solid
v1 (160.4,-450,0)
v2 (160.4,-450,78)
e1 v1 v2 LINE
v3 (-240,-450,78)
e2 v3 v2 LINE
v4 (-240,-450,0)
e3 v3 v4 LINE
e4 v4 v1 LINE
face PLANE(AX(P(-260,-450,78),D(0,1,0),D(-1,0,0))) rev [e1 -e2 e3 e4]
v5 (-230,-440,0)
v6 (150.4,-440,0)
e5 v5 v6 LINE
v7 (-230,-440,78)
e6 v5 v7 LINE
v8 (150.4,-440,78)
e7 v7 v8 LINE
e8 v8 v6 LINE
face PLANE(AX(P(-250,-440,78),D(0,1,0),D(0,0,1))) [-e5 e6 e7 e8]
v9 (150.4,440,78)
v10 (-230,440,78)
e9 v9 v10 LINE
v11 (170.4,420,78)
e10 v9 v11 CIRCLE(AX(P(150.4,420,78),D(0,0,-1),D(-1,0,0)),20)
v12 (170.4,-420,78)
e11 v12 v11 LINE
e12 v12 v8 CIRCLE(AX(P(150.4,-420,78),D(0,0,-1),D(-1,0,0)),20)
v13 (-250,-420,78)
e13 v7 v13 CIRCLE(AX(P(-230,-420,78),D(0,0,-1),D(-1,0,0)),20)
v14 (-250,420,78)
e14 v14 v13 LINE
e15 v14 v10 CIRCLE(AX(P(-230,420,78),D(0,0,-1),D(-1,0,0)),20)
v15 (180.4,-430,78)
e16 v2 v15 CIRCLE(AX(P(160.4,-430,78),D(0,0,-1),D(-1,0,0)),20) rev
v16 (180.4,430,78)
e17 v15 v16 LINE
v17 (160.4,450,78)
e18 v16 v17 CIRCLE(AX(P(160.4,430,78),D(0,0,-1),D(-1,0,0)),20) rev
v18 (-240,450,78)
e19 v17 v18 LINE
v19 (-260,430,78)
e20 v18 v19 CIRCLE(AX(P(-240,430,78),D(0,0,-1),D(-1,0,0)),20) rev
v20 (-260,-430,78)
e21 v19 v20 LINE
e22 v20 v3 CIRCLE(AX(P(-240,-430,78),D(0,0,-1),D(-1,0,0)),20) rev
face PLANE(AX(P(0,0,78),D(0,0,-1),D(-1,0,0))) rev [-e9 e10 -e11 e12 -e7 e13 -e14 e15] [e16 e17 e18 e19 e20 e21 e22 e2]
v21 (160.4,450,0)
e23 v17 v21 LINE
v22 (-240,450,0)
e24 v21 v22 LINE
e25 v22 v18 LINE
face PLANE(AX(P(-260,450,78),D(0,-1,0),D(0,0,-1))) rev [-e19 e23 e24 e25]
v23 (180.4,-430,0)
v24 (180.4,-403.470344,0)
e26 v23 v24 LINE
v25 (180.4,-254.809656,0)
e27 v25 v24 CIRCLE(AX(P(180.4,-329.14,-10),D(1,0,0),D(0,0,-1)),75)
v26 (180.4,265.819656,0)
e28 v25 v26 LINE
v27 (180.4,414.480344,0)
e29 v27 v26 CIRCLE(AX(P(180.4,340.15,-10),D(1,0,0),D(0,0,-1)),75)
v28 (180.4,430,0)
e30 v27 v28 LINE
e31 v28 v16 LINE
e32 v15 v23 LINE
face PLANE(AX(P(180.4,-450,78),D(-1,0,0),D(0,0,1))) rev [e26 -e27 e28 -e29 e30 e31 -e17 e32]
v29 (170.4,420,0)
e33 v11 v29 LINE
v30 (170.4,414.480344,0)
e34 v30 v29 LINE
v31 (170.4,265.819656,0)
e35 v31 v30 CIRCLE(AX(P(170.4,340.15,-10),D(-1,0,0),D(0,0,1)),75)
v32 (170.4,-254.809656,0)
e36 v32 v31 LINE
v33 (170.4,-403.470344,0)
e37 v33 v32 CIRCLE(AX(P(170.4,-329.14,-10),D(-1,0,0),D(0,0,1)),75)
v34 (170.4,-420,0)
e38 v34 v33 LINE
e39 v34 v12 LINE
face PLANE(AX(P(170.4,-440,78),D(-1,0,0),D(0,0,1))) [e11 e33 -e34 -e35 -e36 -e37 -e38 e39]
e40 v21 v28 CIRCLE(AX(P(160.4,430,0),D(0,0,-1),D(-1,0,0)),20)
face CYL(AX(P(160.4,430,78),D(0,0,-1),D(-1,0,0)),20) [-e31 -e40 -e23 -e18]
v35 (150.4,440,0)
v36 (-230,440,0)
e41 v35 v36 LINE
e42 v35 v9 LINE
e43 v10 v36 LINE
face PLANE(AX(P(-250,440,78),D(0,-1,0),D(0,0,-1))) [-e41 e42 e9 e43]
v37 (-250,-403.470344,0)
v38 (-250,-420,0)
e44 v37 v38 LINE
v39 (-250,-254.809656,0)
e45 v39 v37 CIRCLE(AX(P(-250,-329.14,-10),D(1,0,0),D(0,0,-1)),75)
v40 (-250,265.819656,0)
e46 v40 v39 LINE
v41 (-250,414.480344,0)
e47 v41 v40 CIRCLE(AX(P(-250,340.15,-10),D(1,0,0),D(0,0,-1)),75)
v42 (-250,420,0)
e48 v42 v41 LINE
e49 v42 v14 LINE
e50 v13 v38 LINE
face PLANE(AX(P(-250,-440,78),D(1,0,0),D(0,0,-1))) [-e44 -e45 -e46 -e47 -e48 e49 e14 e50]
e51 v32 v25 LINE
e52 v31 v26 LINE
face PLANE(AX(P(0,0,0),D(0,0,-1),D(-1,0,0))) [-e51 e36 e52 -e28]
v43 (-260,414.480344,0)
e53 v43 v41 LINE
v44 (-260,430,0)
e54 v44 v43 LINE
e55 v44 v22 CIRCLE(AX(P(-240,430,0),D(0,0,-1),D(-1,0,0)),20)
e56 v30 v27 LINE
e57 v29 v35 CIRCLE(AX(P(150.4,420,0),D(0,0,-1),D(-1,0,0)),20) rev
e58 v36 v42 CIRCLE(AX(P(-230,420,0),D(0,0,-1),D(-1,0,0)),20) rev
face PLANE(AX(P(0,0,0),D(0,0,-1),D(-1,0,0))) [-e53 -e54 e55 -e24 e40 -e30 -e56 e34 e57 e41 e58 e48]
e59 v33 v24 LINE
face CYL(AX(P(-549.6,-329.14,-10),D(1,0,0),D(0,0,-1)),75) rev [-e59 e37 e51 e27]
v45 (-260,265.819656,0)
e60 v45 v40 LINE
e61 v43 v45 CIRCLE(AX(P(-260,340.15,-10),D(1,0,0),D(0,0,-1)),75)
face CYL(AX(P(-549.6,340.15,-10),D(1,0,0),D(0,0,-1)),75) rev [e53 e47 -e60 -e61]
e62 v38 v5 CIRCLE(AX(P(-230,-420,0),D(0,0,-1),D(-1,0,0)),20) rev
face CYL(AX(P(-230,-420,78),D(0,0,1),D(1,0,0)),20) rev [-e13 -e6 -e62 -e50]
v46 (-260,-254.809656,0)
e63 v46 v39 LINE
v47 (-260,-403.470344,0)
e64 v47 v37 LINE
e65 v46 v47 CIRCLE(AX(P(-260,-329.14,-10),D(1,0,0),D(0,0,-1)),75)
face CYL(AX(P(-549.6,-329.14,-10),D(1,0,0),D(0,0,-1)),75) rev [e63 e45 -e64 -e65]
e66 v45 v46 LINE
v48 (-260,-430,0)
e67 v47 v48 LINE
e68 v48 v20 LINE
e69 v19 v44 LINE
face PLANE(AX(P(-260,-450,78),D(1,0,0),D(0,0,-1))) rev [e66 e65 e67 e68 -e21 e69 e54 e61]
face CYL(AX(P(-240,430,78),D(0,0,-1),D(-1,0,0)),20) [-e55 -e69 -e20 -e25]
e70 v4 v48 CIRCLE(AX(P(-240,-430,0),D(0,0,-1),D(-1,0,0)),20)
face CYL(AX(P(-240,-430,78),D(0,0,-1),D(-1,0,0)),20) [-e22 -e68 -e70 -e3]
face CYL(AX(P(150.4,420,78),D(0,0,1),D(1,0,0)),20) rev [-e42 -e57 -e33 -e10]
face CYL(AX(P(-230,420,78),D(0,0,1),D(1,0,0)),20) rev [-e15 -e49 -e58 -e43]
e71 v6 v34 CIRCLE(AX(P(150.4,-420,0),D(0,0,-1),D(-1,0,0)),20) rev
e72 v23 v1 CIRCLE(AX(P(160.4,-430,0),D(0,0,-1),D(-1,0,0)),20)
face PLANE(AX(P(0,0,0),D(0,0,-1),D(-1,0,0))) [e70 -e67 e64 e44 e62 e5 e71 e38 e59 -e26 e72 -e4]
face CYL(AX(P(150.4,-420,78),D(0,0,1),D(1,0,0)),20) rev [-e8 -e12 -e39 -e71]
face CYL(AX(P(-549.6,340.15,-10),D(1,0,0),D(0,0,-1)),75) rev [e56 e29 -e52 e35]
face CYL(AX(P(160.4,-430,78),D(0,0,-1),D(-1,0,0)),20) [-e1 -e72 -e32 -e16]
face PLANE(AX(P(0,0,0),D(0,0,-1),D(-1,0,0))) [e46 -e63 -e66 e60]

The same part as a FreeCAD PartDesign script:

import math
import FreeCAD as App
import Part
import Sketcher

V = App.Vector


def edges_at(feature, points):
    """Names of the edges that pass closest to the given points."""
    edges = feature.Shape.Edges
    near = lambda p: min(range(len(edges)), key=lambda i: edges[i].distToShape(Part.Vertex(*p))[0])
    return sorted({f"Edge{near(p) + 1}" for p in points})


def add_polygon(sketch, points):
    """Adds a closed chain of lines whose ends are joined by coincident constraints."""
    first, n = sketch.GeometryCount, len(points)
    for a, b in zip(points, points[1:] + points[:1]):
        sketch.addGeometry(Part.LineSegment(App.Vector(*a, 0), App.Vector(*b, 0)), False)
    for i in range(n):
        sketch.addConstraint(Sketcher.Constraint("Coincident", first + i, 2, first + (i + 1) % n, 1))

doc = App.newDocument("Part")
body = doc.addObject("PartDesign::Body", "Body")

sketch1 = body.newObject("Sketcher::SketchObject", "Sketch")
sketch1.AttachmentSupport = (doc.getObject("XY_Plane"), [""])
sketch1.MapMode = "FlatFace"
add_polygon(sketch1, [(-260, 450), (-260, -450), (180.4, -450), (180.4, 450)])
add_polygon(sketch1, [(170.4, -440), (-250, -440), (-250, 440), (170.4, 440)])
sketch1.addConstraint(Sketcher.Constraint("Vertical", 0))
sketch1.addConstraint(Sketcher.Constraint("Horizontal", 1))
sketch1.addConstraint(Sketcher.Constraint("Vertical", 2))
sketch1.addConstraint(Sketcher.Constraint("Horizontal", 3))
sketch1.addConstraint(Sketcher.Constraint("Horizontal", 4))
sketch1.addConstraint(Sketcher.Constraint("Vertical", 5))
sketch1.addConstraint(Sketcher.Constraint("Horizontal", 6))
sketch1.addConstraint(Sketcher.Constraint("Vertical", 7))
sketch1.addConstraint(Sketcher.Constraint("DistanceY", 0, 2, 0, 1, 900.0))
sketch1.addConstraint(Sketcher.Constraint("DistanceY", 5, 1, 5, 2, 880.0))
sketch1.addConstraint(Sketcher.Constraint("DistanceX", 1, 1, 1, 2, 440.4))
sketch1.addConstraint(Sketcher.Constraint("DistanceX", 4, 2, 4, 1, 420.4))
sketch1.addConstraint(Sketcher.Constraint("DistanceX", 0, 2, -1, 1, 260.0))
sketch1.addConstraint(Sketcher.Constraint("DistanceY", 0, 2, -1, 1, 450.0))
sketch1.addConstraint(Sketcher.Constraint("DistanceX", 4, 2, -1, 1, 250.0))
sketch1.addConstraint(Sketcher.Constraint("DistanceY", 4, 2, -1, 1, 440.0))
pad1 = body.newObject("PartDesign::Pad", "Pad")
pad1.Profile = sketch1
pad1.Length = 78
doc.recompute()

fillet = body.newObject("PartDesign::Fillet", "Fillet")
fillet.Base = (pad1, edges_at(pad1, [
    (180.4, -450, 39),
    (-260, -450, 39),
    (-260, 450, 39),
    (180.4, 450, 39),
]))
fillet.Radius = 20
doc.recompute()

fillet2 = body.newObject("PartDesign::Fillet", "Fillet001")
fillet2.Base = (fillet, edges_at(fillet, [
    (170.4, -440, 39),
    (170.4, 440, 39),
    (-250, 440, 39),
    (-250, -440, 39),
]))
fillet2.Radius = 20

sketch2 = body.newObject("Sketcher::SketchObject", "Sketch001")
sketch2.AttachmentSupport = (doc.getObject("YZ_Plane"), [""])
sketch2.MapMode = "FlatFace"
sketch2.AttachmentOffset = App.Placement(V(0, 0, 180.4), App.Rotation())
sketch2.addGeometry(Part.LineSegment(V(265.819656, 0, 0), V(414.480344, 0, 0)), False)
sketch2.addGeometry(Part.ArcOfCircle(Part.Circle(V(340.15, -10, 0), V(0, 0, 1), 75), math.radians(7.662256), math.radians(172.337744)), False)
sketch2.addConstraint(Sketcher.Constraint("Coincident", 0, 1, 1, 2))
sketch2.addConstraint(Sketcher.Constraint("Coincident", 1, 1, 0, 2))
sketch2.addConstraint(Sketcher.Constraint("Horizontal", 0))
sketch2.addConstraint(Sketcher.Constraint("PointOnObject", 0, 1, -1))
sketch2.addConstraint(Sketcher.Constraint("Radius", 1, 75.0))
sketch2.addConstraint(Sketcher.Constraint("DistanceY", 1, 3, -1, 1, 10.0))
sketch2.addConstraint(Sketcher.Constraint("DistanceX", -1, 1, 1, 3, 340.15))
pocket1 = body.newObject("PartDesign::Pocket", "Pocket")
pocket1.Profile = sketch2
pocket1.Length = 730

sketch3 = body.newObject("Sketcher::SketchObject", "Sketch002")
sketch3.AttachmentSupport = (doc.getObject("YZ_Plane"), [""])
sketch3.MapMode = "FlatFace"
sketch3.AttachmentOffset = App.Placement(V(0, 0, 180.4), App.Rotation())
sketch3.addGeometry(Part.LineSegment(V(-403.470344, 0, 0), V(-254.809656, 0, 0)), False)
sketch3.addGeometry(Part.ArcOfCircle(Part.Circle(V(-329.14, -10, 0), V(0, 0, 1), 75), math.radians(7.662256), math.radians(172.337744)), False)
sketch3.addConstraint(Sketcher.Constraint("Coincident", 0, 1, 1, 2))
sketch3.addConstraint(Sketcher.Constraint("Coincident", 1, 1, 0, 2))
sketch3.addConstraint(Sketcher.Constraint("Horizontal", 0))
sketch3.addConstraint(Sketcher.Constraint("PointOnObject", 0, 1, -1))
sketch3.addConstraint(Sketcher.Constraint("Radius", 1, 75.0))
sketch3.addConstraint(Sketcher.Constraint("DistanceY", 1, 3, -1, 1, 10.0))
sketch3.addConstraint(Sketcher.Constraint("DistanceX", 1, 3, -1, 1, 329.14))
pocket2 = body.newObject("PartDesign::Pocket", "Pocket001")
pocket2.Profile = sketch3
pocket2.Length = 730

doc.recompute()
